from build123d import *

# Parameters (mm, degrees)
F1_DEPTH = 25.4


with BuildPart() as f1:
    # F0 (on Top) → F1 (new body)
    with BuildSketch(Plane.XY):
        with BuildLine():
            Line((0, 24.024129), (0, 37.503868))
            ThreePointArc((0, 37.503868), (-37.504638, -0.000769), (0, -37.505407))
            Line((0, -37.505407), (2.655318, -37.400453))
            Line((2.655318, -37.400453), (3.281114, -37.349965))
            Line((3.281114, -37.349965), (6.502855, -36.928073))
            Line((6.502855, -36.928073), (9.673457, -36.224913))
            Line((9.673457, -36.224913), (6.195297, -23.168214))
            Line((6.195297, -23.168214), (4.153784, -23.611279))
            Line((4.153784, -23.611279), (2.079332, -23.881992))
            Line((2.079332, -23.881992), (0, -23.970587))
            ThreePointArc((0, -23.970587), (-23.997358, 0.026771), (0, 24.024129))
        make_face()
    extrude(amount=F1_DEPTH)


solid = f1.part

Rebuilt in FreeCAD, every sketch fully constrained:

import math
import FreeCAD as App
import Part
import Sketcher

V = App.Vector
Q = App.Units.Quantity

doc = App.newDocument("Part")
body = doc.addObject("PartDesign::Body", "Body")

# Sketch on XY plane
sketch1 = body.newObject("Sketcher::SketchObject", "Sketch")
sketch1.AttachmentSupport = (doc.getObject("XY_Plane"), [""])
sketch1.MapMode = "FlatFace"
sketch1.addGeometry(Part.LineSegment(V(0, 24, 0), V(0, 37.5, 0)), False)
sketch1.addGeometry(Part.ArcOfCircle(Part.Circle(V(0, 0, 0), V(0, 0, 1), 37.5), math.radians(90), math.radians(270)), False)
sketch1.addGeometry(Part.LineSegment(V(0, -37.5, 0), V(2.7, -37.4, 0)), False)
sketch1.addGeometry(Part.LineSegment(V(2.7, -37.4, 0), V(3.3, -37.3, 0)), False)
sketch1.addGeometry(Part.LineSegment(V(3.3, -37.3, 0), V(6.5, -36.9, 0)), False)
sketch1.addGeometry(Part.LineSegment(V(6.5, -36.9, 0), V(9.7, -36.2, 0)), False)
sketch1.addGeometry(Part.LineSegment(V(9.7, -36.2, 0), V(6.2, -23.2, 0)), False)
sketch1.addGeometry(Part.LineSegment(V(6.2, -23.2, 0), V(4.2, -23.6, 0)), False)
sketch1.addGeometry(Part.LineSegment(V(4.2, -23.6, 0), V(2.1, -23.9, 0)), False)
sketch1.addGeometry(Part.LineSegment(V(2.1, -23.9, 0), V(0, -24, 0)), False)
sketch1.addGeometry(Part.ArcOfCircle(Part.Circle(V(0, 0, 0), V(0, 0, 1), 24), math.radians(90), math.radians(270)), False)
sketch1.addConstraint(Sketcher.Constraint("Coincident", 0, 2, 1, 1))
sketch1.addConstraint(Sketcher.Constraint("Coincident", 1, 2, 2, 1))
sketch1.addConstraint(Sketcher.Constraint("Coincident", 2, 2, 3, 1))
sketch1.addConstraint(Sketcher.Constraint("Coincident", 3, 2, 4, 1))
sketch1.addConstraint(Sketcher.Constraint("Coincident", 4, 2, 5, 1))
sketch1.addConstraint(Sketcher.Constraint("Coincident", 5, 2, 6, 1))
sketch1.addConstraint(Sketcher.Constraint("Coincident", 6, 2, 7, 1))
sketch1.addConstraint(Sketcher.Constraint("Coincident", 7, 2, 8, 1))
sketch1.addConstraint(Sketcher.Constraint("Coincident", 8, 2, 9, 1))
sketch1.addConstraint(Sketcher.Constraint("Coincident", 9, 2, 10, 2))
sketch1.addConstraint(Sketcher.Constraint("Coincident", 10, 1, 0, 1))
sketch1.addConstraint(Sketcher.Constraint("Vertical", 0))
sketch1.addConstraint(Sketcher.Constraint("PointOnObject", 1, 3, -2))
sketch1.addConstraint(Sketcher.Constraint("PointOnObject", 10, 3, -2))
sketch1.addConstraint(Sketcher.Constraint("PointOnObject", 0, 2, -2))
sketch1.addConstraint(Sketcher.Constraint("PointOnObject", 1, 2, -2))
sketch1.addConstraint(Sketcher.Constraint("PointOnObject", 9, 2, -2))
sketch1.addConstraint(Sketcher.Constraint("Radius", 1, Q("37.504638 mm")))
sketch1.addConstraint(Sketcher.Constraint("Radius", 10, Q("23.997358 mm")))
sketch1.addConstraint(Sketcher.Constraint("DistanceY", 0, 1, 0, 2, Q("13.479739 mm")))
sketch1.addConstraint(Sketcher.Constraint("DistanceY", 5, 2, 6, 2, Q("13.056699 mm")))
sketch1.addConstraint(Sketcher.Constraint("Distance", 2, Q("2.657391 mm")))
sketch1.addConstraint(Sketcher.Constraint("Distance", 3, Q("0.627829 mm")))
sketch1.addConstraint(Sketcher.Constraint("Distance", 6, Q("13.512031 mm")))
sketch1.addConstraint(Sketcher.Constraint("Distance", 7, Q("2.089039 mm")))
sketch1.addConstraint(Sketcher.Constraint("Distance", 8, Q("2.092041 mm")))
sketch1.addConstraint(Sketcher.Constraint("Distance", 9, Q("2.081219 mm")))
sketch1.addConstraint(Sketcher.Constraint("DistanceY", 1, 3, -1, 1, Q("0.00077 mm")))
sketch1.addConstraint(Sketcher.Constraint("DistanceY", 7, 2, -1, 1, Q("23.611279 mm")))
sketch1.addConstraint(Sketcher.Constraint("DistanceX", -1, 1, 8, 2, Q("2.079332 mm")))
sketch1.addConstraint(Sketcher.Constraint("DistanceX", 1, 3, 2, 2, Q("2.655318 mm")))
sketch1.addConstraint(Sketcher.Constraint("DistanceY", 2, 2, 3, 2, Q("0.050488 mm")))
sketch1.addConstraint(Sketcher.Constraint("DistanceX", 3, 2, 4, 2, Q("3.221741 mm")))
sketch1.addConstraint(Sketcher.Constraint("DistanceY", 3, 2, 4, 2, Q("0.421892 mm")))
sketch1.addConstraint(Sketcher.Constraint("DistanceY", 4, 2, 5, 2, Q("0.70316 mm")))
pad1 = body.newObject("PartDesign::Pad", "Pad")
pad1.Profile = sketch1
pad1.Length = Q("1 in")

doc.recompute()
